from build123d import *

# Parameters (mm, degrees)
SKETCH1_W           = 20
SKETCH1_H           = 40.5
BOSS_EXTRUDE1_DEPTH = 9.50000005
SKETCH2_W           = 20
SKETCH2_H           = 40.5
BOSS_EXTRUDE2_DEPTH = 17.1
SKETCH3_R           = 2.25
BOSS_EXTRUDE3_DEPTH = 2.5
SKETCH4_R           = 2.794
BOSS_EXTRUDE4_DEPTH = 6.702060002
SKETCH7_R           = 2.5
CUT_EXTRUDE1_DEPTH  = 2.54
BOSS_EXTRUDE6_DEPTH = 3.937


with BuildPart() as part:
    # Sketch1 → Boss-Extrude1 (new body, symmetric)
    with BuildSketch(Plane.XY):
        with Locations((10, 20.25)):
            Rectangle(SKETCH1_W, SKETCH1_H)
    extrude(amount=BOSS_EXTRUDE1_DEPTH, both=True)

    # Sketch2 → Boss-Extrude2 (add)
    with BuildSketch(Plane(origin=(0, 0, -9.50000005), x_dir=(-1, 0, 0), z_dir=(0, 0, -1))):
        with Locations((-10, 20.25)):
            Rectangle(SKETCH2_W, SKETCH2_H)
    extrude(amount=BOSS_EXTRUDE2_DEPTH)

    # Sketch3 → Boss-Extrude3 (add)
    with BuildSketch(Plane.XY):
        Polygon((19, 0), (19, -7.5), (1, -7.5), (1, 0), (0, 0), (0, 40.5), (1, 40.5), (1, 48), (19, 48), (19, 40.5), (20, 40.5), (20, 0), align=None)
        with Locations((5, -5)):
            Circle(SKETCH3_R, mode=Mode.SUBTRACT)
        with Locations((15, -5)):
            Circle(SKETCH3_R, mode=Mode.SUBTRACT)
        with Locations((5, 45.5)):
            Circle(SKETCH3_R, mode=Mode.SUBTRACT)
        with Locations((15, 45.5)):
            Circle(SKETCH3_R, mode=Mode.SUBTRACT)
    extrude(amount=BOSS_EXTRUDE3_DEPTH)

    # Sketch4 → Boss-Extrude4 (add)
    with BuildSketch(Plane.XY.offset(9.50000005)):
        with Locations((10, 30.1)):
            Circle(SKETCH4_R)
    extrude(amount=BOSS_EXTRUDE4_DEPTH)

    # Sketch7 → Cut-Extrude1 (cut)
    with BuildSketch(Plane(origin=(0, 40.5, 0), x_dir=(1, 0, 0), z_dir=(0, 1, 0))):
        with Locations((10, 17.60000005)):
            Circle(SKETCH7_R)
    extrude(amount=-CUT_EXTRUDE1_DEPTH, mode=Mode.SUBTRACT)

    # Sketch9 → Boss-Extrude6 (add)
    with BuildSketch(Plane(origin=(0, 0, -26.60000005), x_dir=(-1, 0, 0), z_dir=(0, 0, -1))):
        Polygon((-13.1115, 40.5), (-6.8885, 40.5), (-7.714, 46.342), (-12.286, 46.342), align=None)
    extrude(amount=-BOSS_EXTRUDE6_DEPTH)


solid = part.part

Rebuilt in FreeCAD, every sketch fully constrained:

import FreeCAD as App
import Part
import Sketcher

V = App.Vector


def add_polygon(sketch, points):
    """Adds a closed chain of lines whose ends are joined by coincident constraints."""
    first, n = sketch.GeometryCount, len(points)
    for a, b in zip(points, points[1:] + points[:1]):
        sketch.addGeometry(Part.LineSegment(App.Vector(*a, 0), App.Vector(*b, 0)), False)
    for i in range(n):
        sketch.addConstraint(Sketcher.Constraint("Coincident", first + i, 2, first + (i + 1) % n, 1))

doc = App.newDocument("Part")
body = doc.addObject("PartDesign::Body", "Body")

sketch1 = body.newObject("Sketcher::SketchObject", "Sketch")
sketch1.AttachmentSupport = (doc.getObject("XY_Plane"), [""])
sketch1.MapMode = "FlatFace"
add_polygon(sketch1, [(0, 40.5), (0, 0), (20, 0), (20, 40.5)])
sketch1.addConstraint(Sketcher.Constraint("Vertical", 0))
sketch1.addConstraint(Sketcher.Constraint("Horizontal", 1))
sketch1.addConstraint(Sketcher.Constraint("Vertical", 2))
sketch1.addConstraint(Sketcher.Constraint("Horizontal", 3))
sketch1.addConstraint(Sketcher.Constraint("Coincident", 0, 2, -1, 1))
sketch1.addConstraint(Sketcher.Constraint("DistanceX", 1, 1, 1, 2, 20.0))
sketch1.addConstraint(Sketcher.Constraint("DistanceY", 0, 2, 0, 1, 40.5))
pad1 = body.newObject("PartDesign::Pad", "Pad")
pad1.Profile = sketch1
pad1.Length = 19
pad1.Midplane = True

sketch2 = body.newObject("Sketcher::SketchObject", "Sketch001")
sketch2.AttachmentSupport = (doc.getObject("XY_Plane"), [""])
sketch2.MapMode = "FlatFace"
sketch2.AttachmentOffset = App.Placement(V(0, 0, -9.5), App.Rotation())
add_polygon(sketch2, [(20, 40.5), (20, 0), (0, 0), (0, 40.5)])
sketch2.addConstraint(Sketcher.Constraint("Vertical", 0))
sketch2.addConstraint(Sketcher.Constraint("Horizontal", 1))
sketch2.addConstraint(Sketcher.Constraint("Vertical", 2))
sketch2.addConstraint(Sketcher.Constraint("Horizontal", 3))
sketch2.addConstraint(Sketcher.Constraint("Coincident", 1, 2, -1, 1))
sketch2.addConstraint(Sketcher.Constraint("DistanceX", 1, 2, 1, 1, 20.0))
sketch2.addConstraint(Sketcher.Constraint("DistanceY", 0, 2, 0, 1, 40.5))
pad2 = body.newObject("PartDesign::Pad", "Pad001")
pad2.Profile = sketch2
pad2.Length = 17.1
pad2.Reversed = True

sketch3 = body.newObject("Sketcher::SketchObject", "Sketch002")
sketch3.AttachmentSupport = (doc.getObject("XY_Plane"), [""])
sketch3.MapMode = "FlatFace"
add_polygon(sketch3, [(19, -7.5), (19, 0), (20, 0), (20, 40.5), (19, 40.5), (19, 48), (1, 48), (1, 40.5), (0, 40.5), (0, 0), (1, 0), (1, -7.5)])
sketch3.addGeometry(Part.Circle(V(15, -5, 0), V(0, 0, 1), 2.25), False)
sketch3.addGeometry(Part.Circle(V(5, -5, 0), V(0, 0, 1), 2.25), False)
sketch3.addGeometry(Part.Circle(V(15, 45.5, 0), V(0, 0, 1), 2.25), False)
sketch3.addGeometry(Part.Circle(V(5, 45.5, 0), V(0, 0, 1), 2.25), False)
sketch3.addConstraint(Sketcher.Constraint("Vertical", 0))
sketch3.addConstraint(Sketcher.Constraint("Horizontal", 1))
sketch3.addConstraint(Sketcher.Constraint("Vertical", 2))
sketch3.addConstraint(Sketcher.Constraint("Horizontal", 3))
sketch3.addConstraint(Sketcher.Constraint("Vertical", 4))
sketch3.addConstraint(Sketcher.Constraint("Horizontal", 5))
sketch3.addConstraint(Sketcher.Constraint("Vertical", 6))
sketch3.addConstraint(Sketcher.Constraint("Horizontal", 7))
sketch3.addConstraint(Sketcher.Constraint("Vertical", 8))
sketch3.addConstraint(Sketcher.Constraint("Horizontal", 9))
sketch3.addConstraint(Sketcher.Constraint("Vertical", 10))
sketch3.addConstraint(Sketcher.Constraint("Horizontal", 11))
sketch3.addConstraint(Sketcher.Constraint("Coincident", 8, 2, -1, 1))
sketch3.addConstraint(Sketcher.Constraint("Equal", 12, 13))
sketch3.addConstraint(Sketcher.Constraint("Equal", 13, 14))
sketch3.addConstraint(Sketcher.Constraint("Equal", 14, 15))
sketch3.addConstraint(Sketcher.Constraint("PointOnObject", 0, 2, -1))
sketch3.addConstraint(Sketcher.Constraint("Horizontal", 12, 3, 13, 3))
sketch3.addConstraint(Sketcher.Constraint("Horizontal", 14, 3, 15, 3))
sketch3.addConstraint(Sketcher.Constraint("Horizontal", 3, 2, 6, 2))
sketch3.addConstraint(Sketcher.Constraint("Vertical", 12, 3, 14, 3))
sketch3.addConstraint(Sketcher.Constraint("Vertical", 13, 3, 15, 3))
sketch3.addConstraint(Sketcher.Constraint("Vertical", 0, 2, 3, 2))
sketch3.addConstraint(Sketcher.Constraint("Vertical", 6, 2, 9, 2))
sketch3.addConstraint(Sketcher.Constraint("Equal", 3, 7))
sketch3.addConstraint(Sketcher.Constraint("Equal", 0, 4))
sketch3.addConstraint(Sketcher.Constraint("Diameter", 12, 4.5))
sketch3.addConstraint(Sketcher.Constraint("DistanceX", 1, 1, 1, 2, 1.0))
sketch3.addConstraint(Sketcher.Constraint("DistanceX", 5, 2, 5, 1, 18.0))
sketch3.addConstraint(Sketcher.Constraint("DistanceY", 0, 1, 0, 2, 7.5))
sketch3.addConstraint(Sketcher.Constraint("DistanceY", 2, 1, 2, 2, 40.5))
sketch3.addConstraint(Sketcher.Constraint("DistanceX", -1, 1, 12, 3, 15.0))
sketch3.addConstraint(Sketcher.Constraint("DistanceY", 12, 3, -1, 1, 5.0))
sketch3.addConstraint(Sketcher.Constraint("DistanceX", -1, 1, 13, 3, 5.0))
sketch3.addConstraint(Sketcher.Constraint("DistanceY", 2, 2, 14, 3, 5.0))
pad3 = body.newObject("PartDesign::Pad", "Pad002")
pad3.Profile = sketch3
pad3.Length = 2.5

sketch4 = body.newObject("Sketcher::SketchObject", "Sketch003")
sketch4.AttachmentSupport = (doc.getObject("XY_Plane"), [""])
sketch4.MapMode = "FlatFace"
sketch4.AttachmentOffset = App.Placement(V(0, 0, 9.5), App.Rotation())
sketch4.addGeometry(Part.Circle(V(10, 30.1, 0), V(0, 0, 1), 2.794), False)
sketch4.addConstraint(Sketcher.Constraint("Diameter", 0, 5.588))
sketch4.addConstraint(Sketcher.Constraint("DistanceX", -1, 1, 0, 3, 10.0))
sketch4.addConstraint(Sketcher.Constraint("DistanceY", -1, 1, 0, 3, 30.1))
pad4 = body.newObject("PartDesign::Pad", "Pad003")
pad4.Profile = sketch4
pad4.Length = 6.70206

sketch5 = body.newObject("Sketcher::SketchObject", "Sketch004")
sketch5.AttachmentSupport = (doc.getObject("XZ_Plane"), [""])
sketch5.MapMode = "FlatFace"
sketch5.AttachmentOffset = App.Placement(V(0, 0, -40.5), App.Rotation())
sketch5.addGeometry(Part.Circle(V(10, -17.6, 0), V(0, 0, 1), 2.5), False)
sketch5.addConstraint(Sketcher.Constraint("Diameter", 0, 5.0))
sketch5.addConstraint(Sketcher.Constraint("DistanceX", -1, 1, 0, 3, 10.0))
sketch5.addConstraint(Sketcher.Constraint("DistanceY", 0, 3, -1, 1, 17.6))
pocket1 = body.newObject("PartDesign::Pocket", "Pocket")
pocket1.Profile = sketch5
pocket1.Length = 2.54
pocket1.Reversed = True

sketch6 = body.newObject("Sketcher::SketchObject", "Sketch005")
sketch6.AttachmentSupport = (doc.getObject("XY_Plane"), [""])
sketch6.MapMode = "FlatFace"
sketch6.AttachmentOffset = App.Placement(V(0, 0, -26.6), App.Rotation())
add_polygon(sketch6, [(13.1115, 40.5), (6.8885, 40.5), (7.714, 46.342), (12.286, 46.342)])
sketch6.addConstraint(Sketcher.Constraint("Horizontal", 0))
sketch6.addConstraint(Sketcher.Constraint("Horizontal", 2))
sketch6.addConstraint(Sketcher.Constraint("Equal", 1, 3))
sketch6.addConstraint(Sketcher.Constraint("DistanceY", -1, 1, 0, 2, 40.5))
sketch6.addConstraint(Sketcher.Constraint("DistanceX", 0, 2, 0, 1, 6.223))
sketch6.addConstraint(Sketcher.Constraint("DistanceX", 2, 1, 2, 2, 4.572))
sketch6.addConstraint(Sketcher.Constraint("DistanceX", -1, 1, 1, 2, 7.714))
sketch6.addConstraint(Sketcher.Constraint("DistanceY", -1, 1, 1, 2, 46.342))
pad5 = body.newObject("PartDesign::Pad", "Pad004")
pad5.Profile = sketch6
pad5.Length = 3.937

doc.recompute()
